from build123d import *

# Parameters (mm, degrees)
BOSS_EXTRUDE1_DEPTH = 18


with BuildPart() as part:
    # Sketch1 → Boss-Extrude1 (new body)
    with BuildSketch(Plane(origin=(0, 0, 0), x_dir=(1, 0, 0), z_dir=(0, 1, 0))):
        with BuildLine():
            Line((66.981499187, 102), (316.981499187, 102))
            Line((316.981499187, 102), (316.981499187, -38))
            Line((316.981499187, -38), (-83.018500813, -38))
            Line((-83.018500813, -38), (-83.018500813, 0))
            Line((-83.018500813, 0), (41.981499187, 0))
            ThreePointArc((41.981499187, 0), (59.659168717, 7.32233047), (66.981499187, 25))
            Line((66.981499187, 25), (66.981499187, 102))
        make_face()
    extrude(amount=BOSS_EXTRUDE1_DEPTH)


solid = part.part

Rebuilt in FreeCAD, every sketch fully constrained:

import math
import FreeCAD as App
import Part
import Sketcher
from FreeCAD import Vector
Q = App.Units.Quantity

doc = App.newDocument("Part")
body = doc.addObject("PartDesign::Body", "Body")

# Sketch on XZ plane
sketch1 = body.newObject("Sketcher::SketchObject", "Sketch")
sketch1.AttachmentSupport = (doc.getObject("XZ_Plane"), [""])
sketch1.MapMode = "FlatFace"
sketch1.addGeometry([
    Part.LineSegment(Vector(316.981499, -102, 0), Vector(66.981499, -102, 0)),  # 0
    Part.LineSegment(Vector(66.981499, -102, 0), Vector(66.981499, -25, 0)),  # 1
    Part.ArcOfCircle(Part.Circle(Vector(41.981499, -25, 0), Vector(0, 0, 1), 25), math.radians(0), math.radians(90)),  # 2
    Part.LineSegment(Vector(41.981499, 0, 0), Vector(-83.018501, 0, 0)),  # 3
    Part.LineSegment(Vector(-83.018501, 0, 0), Vector(-83.018501, 38, 0)),  # 4
    Part.LineSegment(Vector(-83.018501, 38, 0), Vector(316.981499, 38, 0)),  # 5
    Part.LineSegment(Vector(316.981499, 38, 0), Vector(316.981499, -102, 0)),  # 6
], False)
sketch1.addConstraint([
    Sketcher.Constraint("Coincident", 0, 2, 1, 1),
    Sketcher.Constraint("Tangent", 1, 2, 2, 1),
    Sketcher.Constraint("Tangent", 2, 2, 3, 1),
    Sketcher.Constraint("Coincident", 3, 2, 4, 1),
    Sketcher.Constraint("Coincident", 4, 2, 5, 1),
    Sketcher.Constraint("Coincident", 5, 2, 6, 1),
    Sketcher.Constraint("Coincident", 6, 2, 0, 1),
    Sketcher.Constraint("Horizontal", 0),
    Sketcher.Constraint("Vertical", 1),
    Sketcher.Constraint("Horizontal", 3),
    Sketcher.Constraint("Vertical", 4),
    Sketcher.Constraint("Horizontal", 5),
    Sketcher.Constraint("Vertical", 6),
    Sketcher.Constraint("PointOnObject", 2, 2, -1),
    Sketcher.Constraint("Radius", 2, Q("25 mm")),
    Sketcher.Constraint("DistanceX", 0, 2, 0, 1, Q("250 mm")),
    Sketcher.Constraint("DistanceX", 3, 2, 3, 1, Q("125 mm")),
    Sketcher.Constraint("DistanceY", 1, 1, 1, 2, Q("77 mm")),
    Sketcher.Constraint("DistanceY", 4, 1, 4, 2, Q("38 mm")),
    Sketcher.Constraint("DistanceX", -1, 1, 2, 3, Q("41.981499 mm")),
])
pad1 = body.newObject("PartDesign::Pad", "Pad")
pad1.Profile = sketch1
pad1.Length = 18
pad1.Reversed = True

doc.recompute()
